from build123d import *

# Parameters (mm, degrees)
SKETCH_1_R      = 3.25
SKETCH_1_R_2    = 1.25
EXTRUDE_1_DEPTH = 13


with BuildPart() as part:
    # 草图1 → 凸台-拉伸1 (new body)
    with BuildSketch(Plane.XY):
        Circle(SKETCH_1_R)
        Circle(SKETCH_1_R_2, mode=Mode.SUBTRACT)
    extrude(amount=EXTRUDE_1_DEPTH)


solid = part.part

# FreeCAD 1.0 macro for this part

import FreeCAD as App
import Part
import Sketcher

V = App.Vector
Q = App.Units.Quantity

doc = App.newDocument("Part")
params = doc.addObject("Spreadsheet::Sheet", "Params")
for row, (alias, value) in enumerate([
    ("sketch1_diameter", "6.5 mm"),
    ("sketch1_diameter2", "2.5 mm"),
    ("pad1_length", "13 mm"),
], start=1):
    params.set(f"A{row}", alias)
    params.set(f"B{row}", "=" + value)
    params.setAlias(f"B{row}", alias)

body = doc.addObject("PartDesign::Body", "Body")

# Sketch on XY plane
sketch1 = body.newObject("Sketcher::SketchObject", "Sketch")
sketch1.AttachmentSupport = (doc.getObject("XY_Plane"), [""])
sketch1.MapMode = "FlatFace"
sketch1.addGeometry(Part.Circle(V(0, 0, 0), V(0, 0, 1), 3.2), False)
sketch1.addGeometry(Part.Circle(V(0, 0, 0), V(0, 0, 1), 1.2), False)
sketch1.addConstraint(Sketcher.Constraint("Coincident", 0, 3, -1, 1))
sketch1.addConstraint(Sketcher.Constraint("Coincident", 1, 3, -1, 1))
sketch1.addConstraint(Sketcher.Constraint("Diameter", 0, Q("6.5 mm")))
sketch1.addConstraint(Sketcher.Constraint("Diameter", 1, Q("2.5 mm")))
sketch1.setExpression("Constraints[2]", "Params.sketch1_diameter")
sketch1.setExpression("Constraints[3]", "Params.sketch1_diameter2")
pad1 = body.newObject("PartDesign::Pad", "Pad")
pad1.Profile = sketch1
pad1.setExpression("Length", "Params.pad1_length")

doc.recompute()
